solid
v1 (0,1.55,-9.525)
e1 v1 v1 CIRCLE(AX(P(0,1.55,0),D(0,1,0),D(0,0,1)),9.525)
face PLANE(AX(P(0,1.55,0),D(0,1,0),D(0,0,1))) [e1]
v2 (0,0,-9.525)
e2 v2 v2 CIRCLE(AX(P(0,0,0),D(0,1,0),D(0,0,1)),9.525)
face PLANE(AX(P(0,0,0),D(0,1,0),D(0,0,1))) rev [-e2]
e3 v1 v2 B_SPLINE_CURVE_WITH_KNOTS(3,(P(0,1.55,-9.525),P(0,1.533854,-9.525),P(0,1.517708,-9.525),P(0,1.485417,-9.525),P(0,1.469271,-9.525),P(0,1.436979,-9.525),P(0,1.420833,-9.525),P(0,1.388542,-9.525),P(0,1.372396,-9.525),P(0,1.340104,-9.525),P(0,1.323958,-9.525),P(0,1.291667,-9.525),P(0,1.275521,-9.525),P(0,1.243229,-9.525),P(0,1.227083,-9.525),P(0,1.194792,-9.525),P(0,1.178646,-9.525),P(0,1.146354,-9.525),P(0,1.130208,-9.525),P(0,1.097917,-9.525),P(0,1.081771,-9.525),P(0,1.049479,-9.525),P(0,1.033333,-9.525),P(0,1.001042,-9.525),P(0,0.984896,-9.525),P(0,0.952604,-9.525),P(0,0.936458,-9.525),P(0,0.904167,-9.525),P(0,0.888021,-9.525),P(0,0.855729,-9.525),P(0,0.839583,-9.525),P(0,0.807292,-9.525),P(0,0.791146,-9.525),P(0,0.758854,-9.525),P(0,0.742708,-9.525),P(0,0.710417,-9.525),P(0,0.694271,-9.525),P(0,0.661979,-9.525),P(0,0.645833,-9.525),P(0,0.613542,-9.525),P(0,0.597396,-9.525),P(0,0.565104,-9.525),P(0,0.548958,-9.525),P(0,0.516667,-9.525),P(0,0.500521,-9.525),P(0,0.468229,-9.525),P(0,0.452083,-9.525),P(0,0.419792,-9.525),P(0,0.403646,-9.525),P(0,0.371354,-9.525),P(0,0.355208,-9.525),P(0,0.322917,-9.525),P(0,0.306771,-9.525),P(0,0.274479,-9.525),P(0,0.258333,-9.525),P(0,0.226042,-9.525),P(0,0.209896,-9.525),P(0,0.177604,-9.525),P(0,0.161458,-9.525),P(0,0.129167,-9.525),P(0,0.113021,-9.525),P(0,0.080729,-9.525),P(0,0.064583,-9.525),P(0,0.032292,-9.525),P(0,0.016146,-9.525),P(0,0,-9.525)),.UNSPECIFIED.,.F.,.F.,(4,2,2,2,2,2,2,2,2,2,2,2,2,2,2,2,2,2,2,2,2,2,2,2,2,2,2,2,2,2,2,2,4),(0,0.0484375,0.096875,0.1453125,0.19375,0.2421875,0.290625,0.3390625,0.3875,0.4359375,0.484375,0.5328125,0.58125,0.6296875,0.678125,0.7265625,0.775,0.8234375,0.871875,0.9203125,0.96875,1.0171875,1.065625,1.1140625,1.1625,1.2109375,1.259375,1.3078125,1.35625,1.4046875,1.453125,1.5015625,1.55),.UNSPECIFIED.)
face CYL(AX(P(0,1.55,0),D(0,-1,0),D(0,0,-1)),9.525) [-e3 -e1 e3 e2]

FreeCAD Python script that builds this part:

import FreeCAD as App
import Part
import Sketcher
Q = App.Units.Quantity

doc = App.newDocument("Part")
body = doc.addObject("PartDesign::Body", "Body")

# Sketch on XZ plane
sketch1 = body.newObject("Sketcher::SketchObject", "Sketch")
sketch1.AttachmentSupport = (doc.getObject("XZ_Plane"), [""])
sketch1.MapMode = "FlatFace"
sketch1.addGeometry(Part.Circle(App.Vector(0, 0, 0), App.Vector(0, 0, 1), 10), False)
sketch1.addConstraint(Sketcher.Constraint("Coincident", 0, 3, -1, 1))
sketch1.addConstraint(Sketcher.Constraint("Diameter", 0, Q("0.75 in")))
pad1 = body.newObject("PartDesign::Pad", "Pad")
pad1.Profile = sketch1
pad1.Length = 1.55
pad1.Reversed = True

doc.recompute()
